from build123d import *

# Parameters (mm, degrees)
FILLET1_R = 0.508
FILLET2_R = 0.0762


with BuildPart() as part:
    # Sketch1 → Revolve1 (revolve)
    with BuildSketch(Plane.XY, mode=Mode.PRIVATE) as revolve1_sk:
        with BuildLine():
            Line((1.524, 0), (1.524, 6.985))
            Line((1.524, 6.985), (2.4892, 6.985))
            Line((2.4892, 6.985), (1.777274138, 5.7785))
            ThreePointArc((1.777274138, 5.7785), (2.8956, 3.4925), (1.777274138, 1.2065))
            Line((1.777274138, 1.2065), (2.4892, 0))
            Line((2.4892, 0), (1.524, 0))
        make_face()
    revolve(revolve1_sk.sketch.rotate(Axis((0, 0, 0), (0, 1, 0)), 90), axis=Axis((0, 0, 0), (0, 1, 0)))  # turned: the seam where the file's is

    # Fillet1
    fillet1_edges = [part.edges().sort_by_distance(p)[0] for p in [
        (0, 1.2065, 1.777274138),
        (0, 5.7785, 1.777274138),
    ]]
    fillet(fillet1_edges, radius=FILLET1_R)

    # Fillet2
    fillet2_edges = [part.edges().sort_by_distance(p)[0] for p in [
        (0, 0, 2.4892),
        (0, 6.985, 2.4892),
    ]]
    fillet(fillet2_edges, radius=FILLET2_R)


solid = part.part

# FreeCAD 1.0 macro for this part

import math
import FreeCAD as App
import Part
import Sketcher

V = App.Vector
Q = App.Units.Quantity


def edges_at(feature, points):
    """Names of the edges that pass closest to the given points."""
    edges = feature.Shape.Edges
    near = lambda p: min(range(len(edges)), key=lambda i: edges[i].distToShape(Part.Vertex(*p))[0])
    return sorted({f"Edge{near(p) + 1}" for p in points})

doc = App.newDocument("Part")
body = doc.addObject("PartDesign::Body", "Body")

# Sketch on XY plane
sketch1 = body.newObject("Sketcher::SketchObject", "Sketch")
sketch1.AttachmentSupport = (doc.getObject("XY_Plane"), [""])
sketch1.MapMode = "FlatFace"
sketch1.addGeometry([
    Part.LineSegment(V(1.524, 6.985, 0), V(1.524, 0, 0)),  # 0
    Part.LineSegment(V(1.524, 0, 0), V(2.4892, 0, 0)),  # 1
    Part.LineSegment(V(2.4892, 0, 0), V(1.777274, 1.2065, 0)),  # 2
    Part.ArcOfCircle(Part.Circle(V(0, 3.4925, 0), V(0, 0, 1), 2.8956), math.radians(-52.136354), math.radians(52.136354)),  # 3
    Part.LineSegment(V(1.777274, 5.7785, 0), V(2.4892, 6.985, 0)),  # 4
    Part.LineSegment(V(2.4892, 6.985, 0), V(1.524, 6.985, 0)),  # 5
], False)
sketch1.addConstraint([
    Sketcher.Constraint("Coincident", 0, 2, 1, 1),
    Sketcher.Constraint("Coincident", 1, 2, 2, 1),
    Sketcher.Constraint("Coincident", 2, 2, 3, 1),
    Sketcher.Constraint("Coincident", 3, 2, 4, 1),
    Sketcher.Constraint("Coincident", 4, 2, 5, 1),
    Sketcher.Constraint("Coincident", 5, 2, 0, 1),
    Sketcher.Constraint("Vertical", 0),
    Sketcher.Constraint("Horizontal", 1),
    Sketcher.Constraint("Horizontal", 5),
    Sketcher.Constraint("PointOnObject", 3, 3, -2),
    Sketcher.Constraint("PointOnObject", 0, 2, -1),
    Sketcher.Constraint("Vertical", 2, 2, 3, 2),
    Sketcher.Constraint("Vertical", 1, 2, 4, 2),
    Sketcher.Constraint("Equal", 2, 4),
    Sketcher.Constraint("Radius", 3, Q("0.114 in")),
    Sketcher.Constraint("DistanceX", 1, 1, 1, 2, Q("0.038 in")),
    Sketcher.Constraint("DistanceY", 0, 2, 0, 1, Q("0.275 in")),
    Sketcher.Constraint("DistanceX", -1, 1, 0, 2, Q("0.06 in")),
    Sketcher.Constraint("DistanceY", 2, 2, 3, 3, Q("0.09 in")),
])
revolution = body.newObject("PartDesign::Revolution", "Revolution")
revolution.Profile = sketch1
revolution.ReferenceAxis = (sketch1, ["V_Axis"])
revolution.Angle = 360
doc.recompute()

fillet = body.newObject("PartDesign::Fillet", "Fillet")
fillet.Base = (revolution, edges_at(revolution, [(0, 1.206, 1.777), (0, 5.779, 1.777)]))
fillet.Radius = Q("0.02 in")
doc.recompute()

fillet2 = body.newObject("PartDesign::Fillet", "Fillet001")
fillet2.Base = (fillet, edges_at(fillet, [(0, 0, 2.489), (0, 6.985, 2.489)]))
fillet2.Radius = Q("0.003 in")

doc.recompute()
